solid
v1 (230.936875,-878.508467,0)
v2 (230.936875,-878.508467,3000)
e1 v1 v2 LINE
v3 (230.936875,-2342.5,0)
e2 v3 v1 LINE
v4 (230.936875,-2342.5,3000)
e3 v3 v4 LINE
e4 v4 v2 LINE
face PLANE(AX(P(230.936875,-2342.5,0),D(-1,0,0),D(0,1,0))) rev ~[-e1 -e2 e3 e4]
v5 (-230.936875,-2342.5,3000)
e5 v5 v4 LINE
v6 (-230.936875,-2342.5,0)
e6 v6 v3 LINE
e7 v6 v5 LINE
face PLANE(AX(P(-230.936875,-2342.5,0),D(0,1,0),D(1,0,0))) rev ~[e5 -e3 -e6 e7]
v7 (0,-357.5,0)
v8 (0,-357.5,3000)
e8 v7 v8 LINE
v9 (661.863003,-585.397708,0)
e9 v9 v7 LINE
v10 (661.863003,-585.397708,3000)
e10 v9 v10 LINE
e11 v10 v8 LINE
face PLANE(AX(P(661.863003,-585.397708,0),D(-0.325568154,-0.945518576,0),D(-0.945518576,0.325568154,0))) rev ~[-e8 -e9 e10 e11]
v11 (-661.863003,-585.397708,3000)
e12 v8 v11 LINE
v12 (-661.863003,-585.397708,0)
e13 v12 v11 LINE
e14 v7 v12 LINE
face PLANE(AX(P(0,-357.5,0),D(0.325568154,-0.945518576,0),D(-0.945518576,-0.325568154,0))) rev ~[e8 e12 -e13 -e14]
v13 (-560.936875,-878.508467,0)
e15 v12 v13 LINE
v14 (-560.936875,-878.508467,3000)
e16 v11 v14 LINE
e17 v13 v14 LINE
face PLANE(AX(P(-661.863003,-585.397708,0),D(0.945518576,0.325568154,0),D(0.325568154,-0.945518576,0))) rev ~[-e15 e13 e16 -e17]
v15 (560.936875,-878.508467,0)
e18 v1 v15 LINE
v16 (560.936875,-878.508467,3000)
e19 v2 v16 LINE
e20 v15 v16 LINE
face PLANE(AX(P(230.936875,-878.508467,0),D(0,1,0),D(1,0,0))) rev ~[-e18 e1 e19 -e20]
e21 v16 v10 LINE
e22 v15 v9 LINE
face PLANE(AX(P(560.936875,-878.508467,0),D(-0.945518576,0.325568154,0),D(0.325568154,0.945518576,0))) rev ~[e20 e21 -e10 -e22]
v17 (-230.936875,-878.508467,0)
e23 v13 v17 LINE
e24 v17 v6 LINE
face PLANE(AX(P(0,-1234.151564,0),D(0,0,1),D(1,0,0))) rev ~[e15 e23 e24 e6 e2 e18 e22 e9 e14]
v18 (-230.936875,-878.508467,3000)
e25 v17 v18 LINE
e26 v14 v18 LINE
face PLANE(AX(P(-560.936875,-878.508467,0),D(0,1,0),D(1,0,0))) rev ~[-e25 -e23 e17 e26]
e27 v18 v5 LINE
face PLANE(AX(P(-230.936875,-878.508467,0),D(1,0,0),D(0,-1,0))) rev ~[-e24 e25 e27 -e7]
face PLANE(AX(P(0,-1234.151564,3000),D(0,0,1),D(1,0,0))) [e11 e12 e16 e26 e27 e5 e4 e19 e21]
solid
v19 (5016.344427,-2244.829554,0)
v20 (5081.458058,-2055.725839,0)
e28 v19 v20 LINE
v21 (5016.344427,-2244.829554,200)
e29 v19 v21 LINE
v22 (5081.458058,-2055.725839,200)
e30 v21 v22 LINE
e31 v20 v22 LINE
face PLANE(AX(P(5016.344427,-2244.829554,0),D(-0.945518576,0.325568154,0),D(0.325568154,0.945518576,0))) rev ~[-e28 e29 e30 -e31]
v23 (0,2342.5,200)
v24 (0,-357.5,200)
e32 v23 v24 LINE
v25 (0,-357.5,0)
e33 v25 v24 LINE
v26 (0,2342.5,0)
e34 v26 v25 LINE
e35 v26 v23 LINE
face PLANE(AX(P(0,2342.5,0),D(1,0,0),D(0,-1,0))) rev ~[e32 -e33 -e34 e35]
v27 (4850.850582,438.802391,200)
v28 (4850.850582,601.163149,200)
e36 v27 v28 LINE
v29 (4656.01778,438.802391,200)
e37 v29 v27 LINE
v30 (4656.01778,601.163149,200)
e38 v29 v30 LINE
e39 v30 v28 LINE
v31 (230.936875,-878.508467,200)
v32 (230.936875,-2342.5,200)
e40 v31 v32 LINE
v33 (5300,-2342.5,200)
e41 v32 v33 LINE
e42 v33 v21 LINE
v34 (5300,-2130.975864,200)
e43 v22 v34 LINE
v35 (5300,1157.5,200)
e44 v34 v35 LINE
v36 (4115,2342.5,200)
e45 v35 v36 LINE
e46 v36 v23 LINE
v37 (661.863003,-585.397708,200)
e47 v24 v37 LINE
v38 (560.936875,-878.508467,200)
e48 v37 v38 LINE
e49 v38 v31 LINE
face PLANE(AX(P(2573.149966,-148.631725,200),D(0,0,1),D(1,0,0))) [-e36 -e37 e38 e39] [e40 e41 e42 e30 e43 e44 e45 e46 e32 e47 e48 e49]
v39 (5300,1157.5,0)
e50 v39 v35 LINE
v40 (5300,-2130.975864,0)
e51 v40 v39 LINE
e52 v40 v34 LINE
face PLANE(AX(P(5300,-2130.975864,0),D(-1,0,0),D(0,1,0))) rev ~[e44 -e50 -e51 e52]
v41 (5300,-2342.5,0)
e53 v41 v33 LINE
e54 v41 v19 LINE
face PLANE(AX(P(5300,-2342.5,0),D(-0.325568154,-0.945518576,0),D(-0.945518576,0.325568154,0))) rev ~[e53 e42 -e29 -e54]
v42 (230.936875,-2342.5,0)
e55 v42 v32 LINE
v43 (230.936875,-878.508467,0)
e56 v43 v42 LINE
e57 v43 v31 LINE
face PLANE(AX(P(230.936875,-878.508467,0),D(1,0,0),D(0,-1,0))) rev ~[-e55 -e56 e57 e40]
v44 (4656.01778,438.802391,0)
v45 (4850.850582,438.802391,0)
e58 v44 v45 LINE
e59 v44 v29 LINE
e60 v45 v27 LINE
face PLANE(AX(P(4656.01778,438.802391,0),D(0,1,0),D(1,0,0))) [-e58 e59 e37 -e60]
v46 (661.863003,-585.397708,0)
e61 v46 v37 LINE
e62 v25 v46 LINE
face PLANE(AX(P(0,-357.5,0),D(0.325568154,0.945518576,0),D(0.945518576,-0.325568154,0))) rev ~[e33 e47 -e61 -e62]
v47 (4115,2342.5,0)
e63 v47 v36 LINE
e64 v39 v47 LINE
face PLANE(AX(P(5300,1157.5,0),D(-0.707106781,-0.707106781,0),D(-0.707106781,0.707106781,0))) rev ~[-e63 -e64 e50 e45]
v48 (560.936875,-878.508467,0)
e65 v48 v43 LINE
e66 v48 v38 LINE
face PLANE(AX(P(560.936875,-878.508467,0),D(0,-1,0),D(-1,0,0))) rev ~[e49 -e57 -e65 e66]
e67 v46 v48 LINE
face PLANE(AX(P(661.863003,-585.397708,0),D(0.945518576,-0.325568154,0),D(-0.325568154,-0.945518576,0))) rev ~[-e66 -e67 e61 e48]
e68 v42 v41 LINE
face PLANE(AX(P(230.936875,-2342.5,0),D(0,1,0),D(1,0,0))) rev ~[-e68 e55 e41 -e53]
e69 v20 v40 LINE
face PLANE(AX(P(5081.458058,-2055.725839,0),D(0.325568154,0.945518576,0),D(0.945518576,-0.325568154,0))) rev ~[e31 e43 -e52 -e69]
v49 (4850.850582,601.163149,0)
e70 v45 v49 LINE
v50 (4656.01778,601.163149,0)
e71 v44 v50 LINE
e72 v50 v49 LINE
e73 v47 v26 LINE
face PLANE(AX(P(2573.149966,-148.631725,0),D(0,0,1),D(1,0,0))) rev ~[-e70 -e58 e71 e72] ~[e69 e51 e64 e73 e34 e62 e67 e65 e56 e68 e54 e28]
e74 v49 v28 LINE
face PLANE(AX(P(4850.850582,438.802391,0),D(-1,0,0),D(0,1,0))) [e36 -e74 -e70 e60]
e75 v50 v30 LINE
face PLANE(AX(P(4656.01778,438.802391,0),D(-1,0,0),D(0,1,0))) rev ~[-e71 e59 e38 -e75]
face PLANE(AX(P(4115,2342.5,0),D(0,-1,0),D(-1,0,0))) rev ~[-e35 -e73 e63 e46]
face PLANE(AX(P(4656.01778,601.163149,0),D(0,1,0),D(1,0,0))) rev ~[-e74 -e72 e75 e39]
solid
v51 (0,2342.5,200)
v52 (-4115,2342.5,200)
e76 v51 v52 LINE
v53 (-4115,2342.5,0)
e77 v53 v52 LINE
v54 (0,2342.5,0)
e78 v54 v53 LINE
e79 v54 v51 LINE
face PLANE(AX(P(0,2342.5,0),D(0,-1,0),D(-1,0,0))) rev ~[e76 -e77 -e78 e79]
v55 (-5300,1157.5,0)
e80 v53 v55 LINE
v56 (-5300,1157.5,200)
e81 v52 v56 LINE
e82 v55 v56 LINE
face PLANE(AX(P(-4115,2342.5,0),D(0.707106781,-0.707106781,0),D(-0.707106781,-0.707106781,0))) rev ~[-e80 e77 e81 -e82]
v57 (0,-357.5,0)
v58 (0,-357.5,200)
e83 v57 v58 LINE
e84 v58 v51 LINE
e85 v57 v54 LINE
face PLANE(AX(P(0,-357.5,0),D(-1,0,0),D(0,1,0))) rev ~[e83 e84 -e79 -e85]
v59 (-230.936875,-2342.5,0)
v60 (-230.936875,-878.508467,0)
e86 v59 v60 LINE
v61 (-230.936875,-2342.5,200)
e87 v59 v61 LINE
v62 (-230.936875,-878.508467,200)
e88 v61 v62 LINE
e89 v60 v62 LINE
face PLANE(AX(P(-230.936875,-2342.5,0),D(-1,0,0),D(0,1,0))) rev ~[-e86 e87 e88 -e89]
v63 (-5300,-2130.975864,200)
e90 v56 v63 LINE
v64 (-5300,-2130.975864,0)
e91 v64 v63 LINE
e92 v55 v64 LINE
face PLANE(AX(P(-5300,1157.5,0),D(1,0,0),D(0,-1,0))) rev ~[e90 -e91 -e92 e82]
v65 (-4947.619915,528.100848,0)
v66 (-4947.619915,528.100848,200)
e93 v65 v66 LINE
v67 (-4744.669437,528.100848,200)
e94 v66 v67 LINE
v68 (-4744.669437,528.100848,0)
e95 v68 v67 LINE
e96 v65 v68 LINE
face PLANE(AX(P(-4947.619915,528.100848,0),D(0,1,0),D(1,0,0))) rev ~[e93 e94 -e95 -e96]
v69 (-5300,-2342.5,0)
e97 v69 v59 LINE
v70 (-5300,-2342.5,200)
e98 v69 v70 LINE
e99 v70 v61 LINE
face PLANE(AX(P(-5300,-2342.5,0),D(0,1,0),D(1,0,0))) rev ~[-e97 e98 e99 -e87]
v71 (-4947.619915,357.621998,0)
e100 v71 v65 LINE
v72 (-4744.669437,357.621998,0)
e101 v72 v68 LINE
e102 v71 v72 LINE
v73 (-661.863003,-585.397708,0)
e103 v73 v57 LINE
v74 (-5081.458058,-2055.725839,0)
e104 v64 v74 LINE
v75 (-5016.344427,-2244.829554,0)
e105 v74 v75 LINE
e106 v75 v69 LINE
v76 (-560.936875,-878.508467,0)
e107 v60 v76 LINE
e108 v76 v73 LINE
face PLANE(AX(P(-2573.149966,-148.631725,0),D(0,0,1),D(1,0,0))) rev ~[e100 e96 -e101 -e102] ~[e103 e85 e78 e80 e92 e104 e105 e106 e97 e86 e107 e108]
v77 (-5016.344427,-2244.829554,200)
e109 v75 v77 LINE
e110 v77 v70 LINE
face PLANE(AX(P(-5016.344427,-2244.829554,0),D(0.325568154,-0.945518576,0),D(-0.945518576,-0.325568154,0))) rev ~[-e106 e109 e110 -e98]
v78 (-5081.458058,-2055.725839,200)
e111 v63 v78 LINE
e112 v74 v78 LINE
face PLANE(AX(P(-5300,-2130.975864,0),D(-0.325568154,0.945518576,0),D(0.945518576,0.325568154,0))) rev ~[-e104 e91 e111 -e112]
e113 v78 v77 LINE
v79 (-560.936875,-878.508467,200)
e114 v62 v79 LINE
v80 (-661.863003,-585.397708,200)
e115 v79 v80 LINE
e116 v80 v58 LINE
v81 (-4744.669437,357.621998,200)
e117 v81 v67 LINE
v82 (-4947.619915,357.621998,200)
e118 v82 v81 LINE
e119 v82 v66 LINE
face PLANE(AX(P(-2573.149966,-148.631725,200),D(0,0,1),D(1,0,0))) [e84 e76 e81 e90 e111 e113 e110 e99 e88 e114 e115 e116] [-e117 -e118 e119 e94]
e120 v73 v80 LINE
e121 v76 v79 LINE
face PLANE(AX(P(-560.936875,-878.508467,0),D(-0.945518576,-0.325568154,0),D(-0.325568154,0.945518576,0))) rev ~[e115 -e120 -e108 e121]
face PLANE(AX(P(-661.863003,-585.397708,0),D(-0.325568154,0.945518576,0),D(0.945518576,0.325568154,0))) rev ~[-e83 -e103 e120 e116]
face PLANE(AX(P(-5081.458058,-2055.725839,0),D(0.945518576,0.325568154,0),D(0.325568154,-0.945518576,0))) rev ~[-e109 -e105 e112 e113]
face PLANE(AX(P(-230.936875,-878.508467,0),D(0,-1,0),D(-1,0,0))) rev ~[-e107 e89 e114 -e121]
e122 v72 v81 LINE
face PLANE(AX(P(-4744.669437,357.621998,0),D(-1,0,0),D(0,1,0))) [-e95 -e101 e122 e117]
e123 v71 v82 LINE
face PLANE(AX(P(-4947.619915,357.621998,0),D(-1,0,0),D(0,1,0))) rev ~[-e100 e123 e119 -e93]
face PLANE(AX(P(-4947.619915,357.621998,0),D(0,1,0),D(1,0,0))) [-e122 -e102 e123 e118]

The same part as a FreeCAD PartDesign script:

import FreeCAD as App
import Part
import Sketcher

V = App.Vector
Q = App.Units.Quantity


def add_polygon(sketch, points):
    """Adds a closed chain of lines whose ends are joined by coincident constraints."""
    first, n = sketch.GeometryCount, len(points)
    for a, b in zip(points, points[1:] + points[:1]):
        sketch.addGeometry(Part.LineSegment(App.Vector(*a, 0), App.Vector(*b, 0)), False)
    for i in range(n):
        sketch.addConstraint(Sketcher.Constraint("Coincident", first + i, 2, first + (i + 1) % n, 1))

doc = App.newDocument("Part")
body = doc.addObject("PartDesign::Body", "Body")

# Sketch on XY plane
sketch1 = body.newObject("Sketcher::SketchObject", "Sketch")
sketch1.AttachmentSupport = (doc.getObject("XY_Plane"), [""])
sketch1.MapMode = "FlatFace"
add_polygon(sketch1, [(0, 2342), (-4115, 2342), (-5300, 1158), (-5300, -2131), (-5081, -2056), (-5016, -2245), (-5300, -2342), (-231, -2342), (-231, -879), (-561, -879), (-662, -585), (0, -358)])  # lines 0-11
add_polygon(sketch1, [(-4745, 358), (-4948, 358), (-4948, 528), (-4745, 528)])  # lines 12-15
sketch1.addConstraint([
    Sketcher.Constraint("Horizontal", 0),
    Sketcher.Constraint("Vertical", 2),
    Sketcher.Constraint("Horizontal", 6),
    Sketcher.Constraint("Vertical", 7),
    Sketcher.Constraint("Horizontal", 8),
    Sketcher.Constraint("Vertical", 11),
    Sketcher.Constraint("Horizontal", 12),
    Sketcher.Constraint("Vertical", 13),
    Sketcher.Constraint("Horizontal", 14),
    Sketcher.Constraint("Vertical", 15),
    Sketcher.Constraint("PointOnObject", 10, 2, -2),
    Sketcher.Constraint("Perpendicular", 3, 4),
    Sketcher.Constraint("Perpendicular", 4, 5),
    Sketcher.Constraint("Perpendicular", 5, 9),
    Sketcher.Constraint("Perpendicular", 9, 10),
    Sketcher.Constraint("Vertical", 2, 2, 5, 2),
    Sketcher.Constraint("DistanceX", 0, 2, 0, 1, 4115.0),
    Sketcher.Constraint("DistanceX", 8, 2, 8, 1, 330.0),
    Sketcher.Constraint("DistanceY", 11, 1, 11, 2, 2700.0),
    Sketcher.Constraint("Angle", 1, Q("-135 deg")),
    Sketcher.Constraint("Angle", 3, Q("19 deg")),
    Sketcher.Constraint("Distance", 4, 200.0),
    Sketcher.Constraint("Distance", 5, 300.0),
    Sketcher.Constraint("Distance", 9, 310.0),
    Sketcher.Constraint("Distance", 10, 700.0),
    Sketcher.Constraint("DistanceX", 1, 2, -1, 1, 5300.0),
    Sketcher.Constraint("DistanceY", 5, 2, 1, 2, 3500.0),
    Sketcher.Constraint("DistanceY", -1, 1, 0, 2, 2342.5),
    Sketcher.Constraint("DistanceY", 13, 1, 13, 2, 170.478851),
    Sketcher.Constraint("DistanceX", 12, 2, 12, 1, 202.950478),
    Sketcher.Constraint("DistanceY", -1, 1, 13, 2, 528.100848),
    Sketcher.Constraint("DistanceX", 3, 2, 14, 2, 336.788621),
])
pad1 = body.newObject("PartDesign::Pad", "Pad")
pad1.Profile = sketch1
pad1.Length = 200

# Sketch on YZ plane
sketch2 = body.newObject("Sketcher::SketchObject", "Sketch001")
sketch2.AttachmentSupport = (doc.getObject("YZ_Plane"), [""])
sketch2.MapMode = "FlatFace"
sketch2.AttachmentOffset = App.Placement(V(0, 0, 700), App.Rotation())
add_polygon(sketch2, [(-758, 1200), (-758, 700), (1642, 700), (1642, 1200)])  # lines 0-3
sketch2.addConstraint([
    Sketcher.Constraint("Vertical", 0),
    Sketcher.Constraint("Horizontal", 1),
    Sketcher.Constraint("Vertical", 2),
    Sketcher.Constraint("Horizontal", 3),
    Sketcher.Constraint("DistanceX", 1, 1, 1, 2, 2400.0),
    Sketcher.Constraint("DistanceY", 0, 2, 0, 1, 500.0),
    Sketcher.Constraint("DistanceY", -1, 1, 0, 2, 700.0),
    Sketcher.Constraint("DistanceX", 0, 2, -1, 1, 757.5),
])
pocket1 = body.newObject("PartDesign::Pocket", "Pocket")
pocket1.Profile = sketch2
pocket1.Length = 600
pocket1.Reversed = True

# Sketch on YZ plane
sketch3 = body.newObject("Sketcher::SketchObject", "Sketch002")
sketch3.AttachmentSupport = (doc.getObject("YZ_Plane"), [""])
sketch3.MapMode = "FlatFace"
sketch3.AttachmentOffset = App.Placement(V(0, 0, -700), App.Rotation())
add_polygon(sketch3, [(1642, 1200), (1642, 700), (-758, 700), (-758, 1200)])  # lines 0-3
sketch3.addConstraint([
    Sketcher.Constraint("Vertical", 0),
    Sketcher.Constraint("Horizontal", 1),
    Sketcher.Constraint("Vertical", 2),
    Sketcher.Constraint("Horizontal", 3),
    Sketcher.Constraint("DistanceX", 1, 2, 1, 1, 2400.0),
    Sketcher.Constraint("DistanceY", 0, 2, 0, 1, 500.0),
    Sketcher.Constraint("DistanceY", -1, 1, 0, 2, 700.0),
    Sketcher.Constraint("DistanceX", -1, 1, 0, 2, 1642.5),
])
pocket2 = body.newObject("PartDesign::Pocket", "Pocket001")
pocket2.Profile = sketch3
pocket2.Length = 600
body2 = doc.addObject("PartDesign::Body", "Body001")

# Sketch on XY plane
sketch4 = body2.newObject("Sketcher::SketchObject", "Sketch003")
sketch4.AttachmentSupport = (doc.getObject("XY_Plane001"), [""])
sketch4.MapMode = "FlatFace"
add_polygon(sketch4, [(4115, 2342), (0, 2342), (0, -358), (662, -585), (561, -879), (231, -879), (231, -2342), (5300, -2342), (5016, -2245), (5081, -2056), (5300, -2131), (5300, 1158)])  # lines 0-11
add_polygon(sketch4, [(4851, 439), (4656, 439), (4656, 601), (4851, 601)])  # lines 12-15
sketch4.addConstraint([
    Sketcher.Constraint("Horizontal", 0),
    Sketcher.Constraint("Vertical", 1),
    Sketcher.Constraint("Horizontal", 4),
    Sketcher.Constraint("Vertical", 5),
    Sketcher.Constraint("Horizontal", 6),
    Sketcher.Constraint("Vertical", 10),
    Sketcher.Constraint("Horizontal", 12),
    Sketcher.Constraint("Vertical", 13),
    Sketcher.Constraint("Horizontal", 14),
    Sketcher.Constraint("Vertical", 15),
    Sketcher.Constraint("PointOnObject", 0, 2, -2),
    Sketcher.Constraint("Perpendicular", 2, 3),
    Sketcher.Constraint("Perpendicular", 3, 7),
    Sketcher.Constraint("Perpendicular", 7, 8),
    Sketcher.Constraint("Perpendicular", 8, 9),
    Sketcher.Constraint("Vertical", 6, 2, 9, 2),
    Sketcher.Constraint("DistanceX", 0, 2, 0, 1, 4115.0),
    Sketcher.Constraint("DistanceX", 4, 2, 4, 1, 330.0),
    Sketcher.Constraint("DistanceY", 1, 2, 1, 1, 2700.0),
    Sketcher.Constraint("Angle", 2, Q("-19 deg")),
    Sketcher.Constraint("Angle", 11, Q("135 deg")),
    Sketcher.Constraint("Distance", 2, 700.0),
    Sketcher.Constraint("Distance", 3, 310.0),
    Sketcher.Constraint("Distance", 7, 300.0),
    Sketcher.Constraint("Distance", 8, 200.0),
    Sketcher.Constraint("DistanceX", -1, 1, 6, 2, 5300.0),
    Sketcher.Constraint("DistanceY", 5, 2, 1, 2, 1985.0),
    Sketcher.Constraint("DistanceY", -1, 1, 0, 2, 2342.5),
    Sketcher.Constraint("DistanceX", 12, 2, 12, 1, 194.832802),
    Sketcher.Constraint("DistanceY", 13, 1, 13, 2, 162.360758),
    Sketcher.Constraint("DistanceX", -1, 1, 12, 2, 4656.01778),
    Sketcher.Constraint("DistanceY", -1, 1, 12, 2, 438.802391),
])
pad2 = body2.newObject("PartDesign::Pad", "Pad001")
pad2.Profile = sketch4
pad2.Length = 200
body3 = doc.addObject("PartDesign::Body", "Body002")

# Sketch on XY plane
sketch5 = body3.newObject("Sketcher::SketchObject", "Sketch004")
sketch5.AttachmentSupport = (doc.getObject("XY_Plane002"), [""])
sketch5.MapMode = "FlatFace"
add_polygon(sketch5, [(662, -585), (0, -358), (-662, -585), (-561, -879), (-231, -879), (-231, -2342), (231, -2342), (231, -879), (561, -879)])  # lines 0-8
sketch5.addConstraint([
    Sketcher.Constraint("Horizontal", 3),
    Sketcher.Constraint("Vertical", 4),
    Sketcher.Constraint("Horizontal", 5),
    Sketcher.Constraint("Vertical", 6),
    Sketcher.Constraint("Horizontal", 7),
    Sketcher.Constraint("Symmetric", 3, 2, 6, 2, -2),
    Sketcher.Constraint("Symmetric", 1, 2, 8, 2, -2),
    Sketcher.Constraint("PointOnObject", 0, 2, -2),
    Sketcher.Constraint("Perpendicular", 1, 2),
    Sketcher.Constraint("Perpendicular", 0, 8),
    Sketcher.Constraint("DistanceX", 3, 1, 3, 2, 330.0),
    Sketcher.Constraint("Angle", 0, Q("161 deg")),
    Sketcher.Constraint("Distance", 0, 700.0),
    Sketcher.Constraint("Distance", 2, 310.0),
    Sketcher.Constraint("DistanceY", 4, 2, 0, 2, 1985.0),
    Sketcher.Constraint("DistanceY", 0, 2, -1, 1, 357.5),
])
pad3 = body3.newObject("PartDesign::Pad", "Pad002")
pad3.Profile = sketch5
pad3.Length = 3000
body4 = doc.addObject("PartDesign::Body", "Body003")

# Sketch on XY plane
sketch6 = body4.newObject("Sketcher::SketchObject", "Sketch005")
sketch6.AttachmentSupport = (doc.getObject("XY_Plane003"), [""])
sketch6.MapMode = "FlatFace"
sketch6.AttachmentOffset = App.Placement(V(0, 0, 200), App.Rotation())
add_polygon(sketch6, [(-700, 2342), (-700, 1642), (700, 1642), (700, 2342)])  # lines 0-3
sketch6.addConstraint([
    Sketcher.Constraint("Vertical", 0),
    Sketcher.Constraint("Horizontal", 1),
    Sketcher.Constraint("Vertical", 2),
    Sketcher.Constraint("Horizontal", 3),
    Sketcher.Constraint("DistanceX", 1, 1, 1, 2, 1400.0),
    Sketcher.Constraint("DistanceY", 0, 2, 0, 1, 700.0),
    Sketcher.Constraint("DistanceX", 0, 2, -1, 1, 700.0),
    Sketcher.Constraint("DistanceY", -1, 1, 0, 2, 1642.5),
])
pad4 = body4.newObject("PartDesign::Pad", "Pad003")
pad4.Profile = sketch6
pad4.Length = 500
body5 = doc.addObject("PartDesign::Body", "Body004")

# Sketch on XY plane
sketch7 = body5.newObject("Sketcher::SketchObject", "Sketch006")
sketch7.AttachmentSupport = (doc.getObject("XY_Plane004"), [""])
sketch7.MapMode = "FlatFace"
sketch7.AttachmentOffset = App.Placement(V(0, 0, 200), App.Rotation())
add_polygon(sketch7, [(700, 1642), (0, 1642), (0, -358), (662, -585), (662, -758), (700, -758)])  # lines 0-5
sketch7.addConstraint([
    Sketcher.Constraint("Horizontal", 0),
    Sketcher.Constraint("Vertical", 1),
    Sketcher.Constraint("Vertical", 3),
    Sketcher.Constraint("Horizontal", 4),
    Sketcher.Constraint("Vertical", 5),
    Sketcher.Constraint("PointOnObject", 0, 2, -2),
    Sketcher.Constraint("DistanceX", 0, 2, 0, 1, 700.0),
    Sketcher.Constraint("DistanceY", 1, 2, 1, 1, 2000.0),
    Sketcher.Constraint("DistanceY", 5, 1, 5, 2, 2400.0),
    Sketcher.Constraint("Angle", 2, Q("-19 deg")),
    Sketcher.Constraint("Distance", 2, 700.0),
    Sketcher.Constraint("DistanceY", -1, 1, 0, 2, 1642.5),
])
pad5 = body5.newObject("PartDesign::Pad", "Pad004")
pad5.Profile = sketch7
pad5.Length = 1000
body6 = doc.addObject("PartDesign::Body", "Body005")

# Sketch on XY plane
sketch8 = body6.newObject("Sketcher::SketchObject", "Sketch007")
sketch8.AttachmentSupport = (doc.getObject("XY_Plane005"), [""])
sketch8.MapMode = "FlatFace"
sketch8.AttachmentOffset = App.Placement(V(0, 0, 200), App.Rotation())
add_polygon(sketch8, [(0, 1642), (-700, 1642), (-700, -758), (-662, -758), (-662, -585), (0, -358)])  # lines 0-5
sketch8.addConstraint([
    Sketcher.Constraint("Horizontal", 0),
    Sketcher.Constraint("Vertical", 1),
    Sketcher.Constraint("Horizontal", 2),
    Sketcher.Constraint("Vertical", 3),
    Sketcher.Constraint("Vertical", 5),
    Sketcher.Constraint("PointOnObject", 4, 2, -2),
    Sketcher.Constraint("DistanceX", 0, 2, 0, 1, 700.0),
    Sketcher.Constraint("DistanceY", 1, 2, 1, 1, 2400.0),
    Sketcher.Constraint("DistanceY", 5, 1, 5, 2, 2000.0),
    Sketcher.Constraint("Angle", 4, Q("19 deg")),
    Sketcher.Constraint("Distance", 4, 700.0),
    Sketcher.Constraint("DistanceY", -1, 1, 0, 2, 1642.5),
])
pad6 = body6.newObject("PartDesign::Pad", "Pad005")
pad6.Profile = sketch8
pad6.Length = 1000
body7 = doc.addObject("PartDesign::Body", "Body006")

# Sketch on XY plane
sketch9 = body7.newObject("Sketcher::SketchObject", "Sketch008")
sketch9.AttachmentSupport = (doc.getObject("XY_Plane006"), [""])
sketch9.MapMode = "FlatFace"
sketch9.AttachmentOffset = App.Placement(V(0, 0, 200), App.Rotation())
add_polygon(sketch9, [(0, -585), (0, -758), (662, -758), (662, -585)])  # lines 0-3
sketch9.addConstraint([
    Sketcher.Constraint("Vertical", 0),
    Sketcher.Constraint("Horizontal", 1),
    Sketcher.Constraint("Vertical", 2),
    Sketcher.Constraint("Horizontal", 3),
    Sketcher.Constraint("PointOnObject", 0, 2, -2),
    Sketcher.Constraint("DistanceY", 0, 2, -1, 1, 757.5),
    Sketcher.Constraint("DistanceY", 0, 2, 0, 1, 172.102292),
    Sketcher.Constraint("DistanceX", 1, 1, 1, 2, 661.863003),
])
pad7 = body7.newObject("PartDesign::Pad", "Pad006")
pad7.Profile = sketch9
pad7.Length = 1000
body8 = doc.addObject("PartDesign::Body", "Body007")

# Sketch on XY plane
sketch10 = body8.newObject("Sketcher::SketchObject", "Sketch009")
sketch10.AttachmentSupport = (doc.getObject("XY_Plane007"), [""])
sketch10.MapMode = "FlatFace"
sketch10.AttachmentOffset = App.Placement(V(0, 0, 200), App.Rotation())
add_polygon(sketch10, [(-662, -585), (-662, -758), (-603, -758)])  # lines 0-2
sketch10.addConstraint([
    Sketcher.Constraint("Vertical", 0),
    Sketcher.Constraint("Horizontal", 1),
    Sketcher.Constraint("Angle", 2, Q("109 deg")),
    Sketcher.Constraint("DistanceY", 0, 2, -1, 1, 757.5),
    Sketcher.Constraint("DistanceX", 1, 1, 1, 2, 59.259571),
    Sketcher.Constraint("DistanceX", 1, 2, -1, 1, 602.603432),
])
pad8 = body8.newObject("PartDesign::Pad", "Pad007")
pad8.Profile = sketch10
pad8.Length = 1000
body9 = doc.addObject("PartDesign::Body", "Body008")

# Sketch on XY plane
sketch11 = body9.newObject("Sketcher::SketchObject", "Sketch010")
sketch11.AttachmentSupport = (doc.getObject("XY_Plane008"), [""])
sketch11.MapMode = "FlatFace"
sketch11.AttachmentOffset = App.Placement(V(0, 0, 700), App.Rotation())
add_polygon(sketch11, [(-100, 2342), (-100, 1642), (100, 1642), (100, 2342)])  # lines 0-3
sketch11.addConstraint([
    Sketcher.Constraint("Vertical", 0),
    Sketcher.Constraint("Horizontal", 1),
    Sketcher.Constraint("Vertical", 2),
    Sketcher.Constraint("Horizontal", 3),
    Sketcher.Constraint("DistanceX", 1, 1, 1, 2, 200.0),
    Sketcher.Constraint("DistanceY", 0, 2, 0, 1, 700.0),
    Sketcher.Constraint("DistanceX", 0, 2, -1, 1, 100.0),
    Sketcher.Constraint("DistanceY", -1, 1, 0, 2, 1642.5),
])
pad9 = body9.newObject("PartDesign::Pad", "Pad008")
pad9.Profile = sketch11
pad9.Length = 500
body4.Visibility = False
body5.Visibility = False
body6.Visibility = False
body7.Visibility = False
body8.Visibility = False
body9.Visibility = False

doc.recompute()
